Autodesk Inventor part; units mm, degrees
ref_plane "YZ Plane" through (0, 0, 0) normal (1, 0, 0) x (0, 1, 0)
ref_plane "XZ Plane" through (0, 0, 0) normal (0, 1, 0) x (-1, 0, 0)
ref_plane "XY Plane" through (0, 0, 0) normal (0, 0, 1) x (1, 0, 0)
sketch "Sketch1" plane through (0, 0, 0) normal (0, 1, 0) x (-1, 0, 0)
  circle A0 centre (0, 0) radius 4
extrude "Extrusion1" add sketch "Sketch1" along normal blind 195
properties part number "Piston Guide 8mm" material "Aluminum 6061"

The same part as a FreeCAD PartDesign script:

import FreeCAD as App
import Part
import Sketcher

doc = App.newDocument("Part")
body = doc.addObject("PartDesign::Body", "Body")

# Sketch on XZ plane
sketch1 = body.newObject("Sketcher::SketchObject", "Sketch")
sketch1.AttachmentSupport = (doc.getObject("XZ_Plane"), [""])
sketch1.MapMode = "FlatFace"
sketch1.addGeometry(Part.Circle(App.Vector(0, 0, 0), App.Vector(0, 0, 1), 4), False)
sketch1.addConstraint([
    Sketcher.Constraint("Coincident", 0, 3, -1, 1),
    Sketcher.Constraint("Diameter", 0, 8.0),
])
pad1 = body.newObject("PartDesign::Pad", "Pad")
pad1.Profile = sketch1
pad1.Length = 195
pad1.Reversed = True

doc.recompute()
